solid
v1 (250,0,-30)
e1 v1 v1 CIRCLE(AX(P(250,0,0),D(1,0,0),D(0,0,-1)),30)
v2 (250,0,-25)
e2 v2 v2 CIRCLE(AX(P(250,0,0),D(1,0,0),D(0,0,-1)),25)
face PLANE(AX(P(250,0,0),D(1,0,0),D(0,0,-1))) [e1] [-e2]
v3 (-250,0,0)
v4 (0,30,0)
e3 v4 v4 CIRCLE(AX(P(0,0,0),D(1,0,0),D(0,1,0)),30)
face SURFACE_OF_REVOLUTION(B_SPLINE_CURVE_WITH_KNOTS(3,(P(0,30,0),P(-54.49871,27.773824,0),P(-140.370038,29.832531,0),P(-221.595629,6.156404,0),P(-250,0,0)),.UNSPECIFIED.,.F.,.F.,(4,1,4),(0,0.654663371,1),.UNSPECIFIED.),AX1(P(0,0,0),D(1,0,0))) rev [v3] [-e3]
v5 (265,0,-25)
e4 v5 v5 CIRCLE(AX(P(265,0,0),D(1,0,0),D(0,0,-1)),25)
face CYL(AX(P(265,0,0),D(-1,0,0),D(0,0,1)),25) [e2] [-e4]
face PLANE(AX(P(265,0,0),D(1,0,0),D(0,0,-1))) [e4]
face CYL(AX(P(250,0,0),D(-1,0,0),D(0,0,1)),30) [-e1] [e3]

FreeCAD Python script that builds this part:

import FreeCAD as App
import Part
import Sketcher

V = App.Vector
Q = App.Units.Quantity

doc = App.newDocument("Part")
body = doc.addObject("PartDesign::Body", "Body")

sketch1 = doc.addObject("Sketcher::SketchObject", "Sketch")
body.addObject(sketch1)
sketch1.AttachmentSupport = (doc.YZ_Plane, [""])
sketch1.MapMode = "FlatFace"
sketch1.addGeometry(Part.Circle(V(0, 0, 0), V(0, 0, 1), 30), False)
sketch1.addConstraint(Sketcher.Constraint("Coincident", 0, 3, -1, 1))
sketch1.addConstraint(Sketcher.Constraint("Diameter", 0, Q("60 mm")))
pad1 = doc.addObject("PartDesign::Pad", "Pad")
body.addObject(pad1)
pad1.Profile = sketch1
pad1.Length = 250

sketch2 = doc.addObject("Sketcher::SketchObject", "Sketch001")
body.addObject(sketch2)
sketch2.AttachmentSupport = (doc.YZ_Plane, [""])
sketch2.MapMode = "FlatFace"
sketch2.AttachmentOffset = App.Placement(V(0, 0, 250), App.Rotation())
sketch2.addGeometry(Part.Circle(V(0, 0, 0), V(0, 0, 1), 25), False)
sketch2.addConstraint(Sketcher.Constraint("Coincident", 0, 3, -1, 1))
sketch2.addConstraint(Sketcher.Constraint("Diameter", 0, Q("50 mm")))
pad2 = doc.addObject("PartDesign::Pad", "Pad001")
body.addObject(pad2)
pad2.Profile = sketch2
pad2.Length = 15

sketch3 = doc.addObject("Sketcher::SketchObject", "Sketch002")
body.addObject(sketch3)
sketch3.AttachmentSupport = (doc.XY_Plane, [""])
sketch3.MapMode = "FlatFace"
sketch3.addGeometry(Part.LineSegment(V(0, 0, 0), V(0, 30, 0)), False)
sketch3.addGeometry(Part.BSplineCurve([V(-250, 0, 0), V(-221.595629, 6.156404, 0), V(-140.370038, 29.832531, 0), V(-54.49871, 27.773824, 0), V(0, 30, 0)], [4, 1, 4], [0, 0.345336629, 1], False, 3, [1, 1, 1, 1, 1], False), False)
sketch3.addGeometry(Part.LineSegment(V(-250, 0, 0), V(0, 0, 0)), False)
sketch3.addConstraint(Sketcher.Constraint("Block", 1))
sketch3.addConstraint(Sketcher.Constraint("Coincident", 0, 2, 1, 2))
sketch3.addConstraint(Sketcher.Constraint("Coincident", 1, 1, 2, 1))
sketch3.addConstraint(Sketcher.Constraint("Coincident", 2, 2, 0, 1))
sketch3.addConstraint(Sketcher.Constraint("Vertical", 0))
sketch3.addConstraint(Sketcher.Constraint("Horizontal", 2))
revolution = doc.addObject("PartDesign::Revolution", "Revolution")
body.addObject(revolution)
revolution.Profile = sketch3
revolution.ReferenceAxis = (sketch3, ["H_Axis"])
revolution.Angle = 360

doc.recompute()
